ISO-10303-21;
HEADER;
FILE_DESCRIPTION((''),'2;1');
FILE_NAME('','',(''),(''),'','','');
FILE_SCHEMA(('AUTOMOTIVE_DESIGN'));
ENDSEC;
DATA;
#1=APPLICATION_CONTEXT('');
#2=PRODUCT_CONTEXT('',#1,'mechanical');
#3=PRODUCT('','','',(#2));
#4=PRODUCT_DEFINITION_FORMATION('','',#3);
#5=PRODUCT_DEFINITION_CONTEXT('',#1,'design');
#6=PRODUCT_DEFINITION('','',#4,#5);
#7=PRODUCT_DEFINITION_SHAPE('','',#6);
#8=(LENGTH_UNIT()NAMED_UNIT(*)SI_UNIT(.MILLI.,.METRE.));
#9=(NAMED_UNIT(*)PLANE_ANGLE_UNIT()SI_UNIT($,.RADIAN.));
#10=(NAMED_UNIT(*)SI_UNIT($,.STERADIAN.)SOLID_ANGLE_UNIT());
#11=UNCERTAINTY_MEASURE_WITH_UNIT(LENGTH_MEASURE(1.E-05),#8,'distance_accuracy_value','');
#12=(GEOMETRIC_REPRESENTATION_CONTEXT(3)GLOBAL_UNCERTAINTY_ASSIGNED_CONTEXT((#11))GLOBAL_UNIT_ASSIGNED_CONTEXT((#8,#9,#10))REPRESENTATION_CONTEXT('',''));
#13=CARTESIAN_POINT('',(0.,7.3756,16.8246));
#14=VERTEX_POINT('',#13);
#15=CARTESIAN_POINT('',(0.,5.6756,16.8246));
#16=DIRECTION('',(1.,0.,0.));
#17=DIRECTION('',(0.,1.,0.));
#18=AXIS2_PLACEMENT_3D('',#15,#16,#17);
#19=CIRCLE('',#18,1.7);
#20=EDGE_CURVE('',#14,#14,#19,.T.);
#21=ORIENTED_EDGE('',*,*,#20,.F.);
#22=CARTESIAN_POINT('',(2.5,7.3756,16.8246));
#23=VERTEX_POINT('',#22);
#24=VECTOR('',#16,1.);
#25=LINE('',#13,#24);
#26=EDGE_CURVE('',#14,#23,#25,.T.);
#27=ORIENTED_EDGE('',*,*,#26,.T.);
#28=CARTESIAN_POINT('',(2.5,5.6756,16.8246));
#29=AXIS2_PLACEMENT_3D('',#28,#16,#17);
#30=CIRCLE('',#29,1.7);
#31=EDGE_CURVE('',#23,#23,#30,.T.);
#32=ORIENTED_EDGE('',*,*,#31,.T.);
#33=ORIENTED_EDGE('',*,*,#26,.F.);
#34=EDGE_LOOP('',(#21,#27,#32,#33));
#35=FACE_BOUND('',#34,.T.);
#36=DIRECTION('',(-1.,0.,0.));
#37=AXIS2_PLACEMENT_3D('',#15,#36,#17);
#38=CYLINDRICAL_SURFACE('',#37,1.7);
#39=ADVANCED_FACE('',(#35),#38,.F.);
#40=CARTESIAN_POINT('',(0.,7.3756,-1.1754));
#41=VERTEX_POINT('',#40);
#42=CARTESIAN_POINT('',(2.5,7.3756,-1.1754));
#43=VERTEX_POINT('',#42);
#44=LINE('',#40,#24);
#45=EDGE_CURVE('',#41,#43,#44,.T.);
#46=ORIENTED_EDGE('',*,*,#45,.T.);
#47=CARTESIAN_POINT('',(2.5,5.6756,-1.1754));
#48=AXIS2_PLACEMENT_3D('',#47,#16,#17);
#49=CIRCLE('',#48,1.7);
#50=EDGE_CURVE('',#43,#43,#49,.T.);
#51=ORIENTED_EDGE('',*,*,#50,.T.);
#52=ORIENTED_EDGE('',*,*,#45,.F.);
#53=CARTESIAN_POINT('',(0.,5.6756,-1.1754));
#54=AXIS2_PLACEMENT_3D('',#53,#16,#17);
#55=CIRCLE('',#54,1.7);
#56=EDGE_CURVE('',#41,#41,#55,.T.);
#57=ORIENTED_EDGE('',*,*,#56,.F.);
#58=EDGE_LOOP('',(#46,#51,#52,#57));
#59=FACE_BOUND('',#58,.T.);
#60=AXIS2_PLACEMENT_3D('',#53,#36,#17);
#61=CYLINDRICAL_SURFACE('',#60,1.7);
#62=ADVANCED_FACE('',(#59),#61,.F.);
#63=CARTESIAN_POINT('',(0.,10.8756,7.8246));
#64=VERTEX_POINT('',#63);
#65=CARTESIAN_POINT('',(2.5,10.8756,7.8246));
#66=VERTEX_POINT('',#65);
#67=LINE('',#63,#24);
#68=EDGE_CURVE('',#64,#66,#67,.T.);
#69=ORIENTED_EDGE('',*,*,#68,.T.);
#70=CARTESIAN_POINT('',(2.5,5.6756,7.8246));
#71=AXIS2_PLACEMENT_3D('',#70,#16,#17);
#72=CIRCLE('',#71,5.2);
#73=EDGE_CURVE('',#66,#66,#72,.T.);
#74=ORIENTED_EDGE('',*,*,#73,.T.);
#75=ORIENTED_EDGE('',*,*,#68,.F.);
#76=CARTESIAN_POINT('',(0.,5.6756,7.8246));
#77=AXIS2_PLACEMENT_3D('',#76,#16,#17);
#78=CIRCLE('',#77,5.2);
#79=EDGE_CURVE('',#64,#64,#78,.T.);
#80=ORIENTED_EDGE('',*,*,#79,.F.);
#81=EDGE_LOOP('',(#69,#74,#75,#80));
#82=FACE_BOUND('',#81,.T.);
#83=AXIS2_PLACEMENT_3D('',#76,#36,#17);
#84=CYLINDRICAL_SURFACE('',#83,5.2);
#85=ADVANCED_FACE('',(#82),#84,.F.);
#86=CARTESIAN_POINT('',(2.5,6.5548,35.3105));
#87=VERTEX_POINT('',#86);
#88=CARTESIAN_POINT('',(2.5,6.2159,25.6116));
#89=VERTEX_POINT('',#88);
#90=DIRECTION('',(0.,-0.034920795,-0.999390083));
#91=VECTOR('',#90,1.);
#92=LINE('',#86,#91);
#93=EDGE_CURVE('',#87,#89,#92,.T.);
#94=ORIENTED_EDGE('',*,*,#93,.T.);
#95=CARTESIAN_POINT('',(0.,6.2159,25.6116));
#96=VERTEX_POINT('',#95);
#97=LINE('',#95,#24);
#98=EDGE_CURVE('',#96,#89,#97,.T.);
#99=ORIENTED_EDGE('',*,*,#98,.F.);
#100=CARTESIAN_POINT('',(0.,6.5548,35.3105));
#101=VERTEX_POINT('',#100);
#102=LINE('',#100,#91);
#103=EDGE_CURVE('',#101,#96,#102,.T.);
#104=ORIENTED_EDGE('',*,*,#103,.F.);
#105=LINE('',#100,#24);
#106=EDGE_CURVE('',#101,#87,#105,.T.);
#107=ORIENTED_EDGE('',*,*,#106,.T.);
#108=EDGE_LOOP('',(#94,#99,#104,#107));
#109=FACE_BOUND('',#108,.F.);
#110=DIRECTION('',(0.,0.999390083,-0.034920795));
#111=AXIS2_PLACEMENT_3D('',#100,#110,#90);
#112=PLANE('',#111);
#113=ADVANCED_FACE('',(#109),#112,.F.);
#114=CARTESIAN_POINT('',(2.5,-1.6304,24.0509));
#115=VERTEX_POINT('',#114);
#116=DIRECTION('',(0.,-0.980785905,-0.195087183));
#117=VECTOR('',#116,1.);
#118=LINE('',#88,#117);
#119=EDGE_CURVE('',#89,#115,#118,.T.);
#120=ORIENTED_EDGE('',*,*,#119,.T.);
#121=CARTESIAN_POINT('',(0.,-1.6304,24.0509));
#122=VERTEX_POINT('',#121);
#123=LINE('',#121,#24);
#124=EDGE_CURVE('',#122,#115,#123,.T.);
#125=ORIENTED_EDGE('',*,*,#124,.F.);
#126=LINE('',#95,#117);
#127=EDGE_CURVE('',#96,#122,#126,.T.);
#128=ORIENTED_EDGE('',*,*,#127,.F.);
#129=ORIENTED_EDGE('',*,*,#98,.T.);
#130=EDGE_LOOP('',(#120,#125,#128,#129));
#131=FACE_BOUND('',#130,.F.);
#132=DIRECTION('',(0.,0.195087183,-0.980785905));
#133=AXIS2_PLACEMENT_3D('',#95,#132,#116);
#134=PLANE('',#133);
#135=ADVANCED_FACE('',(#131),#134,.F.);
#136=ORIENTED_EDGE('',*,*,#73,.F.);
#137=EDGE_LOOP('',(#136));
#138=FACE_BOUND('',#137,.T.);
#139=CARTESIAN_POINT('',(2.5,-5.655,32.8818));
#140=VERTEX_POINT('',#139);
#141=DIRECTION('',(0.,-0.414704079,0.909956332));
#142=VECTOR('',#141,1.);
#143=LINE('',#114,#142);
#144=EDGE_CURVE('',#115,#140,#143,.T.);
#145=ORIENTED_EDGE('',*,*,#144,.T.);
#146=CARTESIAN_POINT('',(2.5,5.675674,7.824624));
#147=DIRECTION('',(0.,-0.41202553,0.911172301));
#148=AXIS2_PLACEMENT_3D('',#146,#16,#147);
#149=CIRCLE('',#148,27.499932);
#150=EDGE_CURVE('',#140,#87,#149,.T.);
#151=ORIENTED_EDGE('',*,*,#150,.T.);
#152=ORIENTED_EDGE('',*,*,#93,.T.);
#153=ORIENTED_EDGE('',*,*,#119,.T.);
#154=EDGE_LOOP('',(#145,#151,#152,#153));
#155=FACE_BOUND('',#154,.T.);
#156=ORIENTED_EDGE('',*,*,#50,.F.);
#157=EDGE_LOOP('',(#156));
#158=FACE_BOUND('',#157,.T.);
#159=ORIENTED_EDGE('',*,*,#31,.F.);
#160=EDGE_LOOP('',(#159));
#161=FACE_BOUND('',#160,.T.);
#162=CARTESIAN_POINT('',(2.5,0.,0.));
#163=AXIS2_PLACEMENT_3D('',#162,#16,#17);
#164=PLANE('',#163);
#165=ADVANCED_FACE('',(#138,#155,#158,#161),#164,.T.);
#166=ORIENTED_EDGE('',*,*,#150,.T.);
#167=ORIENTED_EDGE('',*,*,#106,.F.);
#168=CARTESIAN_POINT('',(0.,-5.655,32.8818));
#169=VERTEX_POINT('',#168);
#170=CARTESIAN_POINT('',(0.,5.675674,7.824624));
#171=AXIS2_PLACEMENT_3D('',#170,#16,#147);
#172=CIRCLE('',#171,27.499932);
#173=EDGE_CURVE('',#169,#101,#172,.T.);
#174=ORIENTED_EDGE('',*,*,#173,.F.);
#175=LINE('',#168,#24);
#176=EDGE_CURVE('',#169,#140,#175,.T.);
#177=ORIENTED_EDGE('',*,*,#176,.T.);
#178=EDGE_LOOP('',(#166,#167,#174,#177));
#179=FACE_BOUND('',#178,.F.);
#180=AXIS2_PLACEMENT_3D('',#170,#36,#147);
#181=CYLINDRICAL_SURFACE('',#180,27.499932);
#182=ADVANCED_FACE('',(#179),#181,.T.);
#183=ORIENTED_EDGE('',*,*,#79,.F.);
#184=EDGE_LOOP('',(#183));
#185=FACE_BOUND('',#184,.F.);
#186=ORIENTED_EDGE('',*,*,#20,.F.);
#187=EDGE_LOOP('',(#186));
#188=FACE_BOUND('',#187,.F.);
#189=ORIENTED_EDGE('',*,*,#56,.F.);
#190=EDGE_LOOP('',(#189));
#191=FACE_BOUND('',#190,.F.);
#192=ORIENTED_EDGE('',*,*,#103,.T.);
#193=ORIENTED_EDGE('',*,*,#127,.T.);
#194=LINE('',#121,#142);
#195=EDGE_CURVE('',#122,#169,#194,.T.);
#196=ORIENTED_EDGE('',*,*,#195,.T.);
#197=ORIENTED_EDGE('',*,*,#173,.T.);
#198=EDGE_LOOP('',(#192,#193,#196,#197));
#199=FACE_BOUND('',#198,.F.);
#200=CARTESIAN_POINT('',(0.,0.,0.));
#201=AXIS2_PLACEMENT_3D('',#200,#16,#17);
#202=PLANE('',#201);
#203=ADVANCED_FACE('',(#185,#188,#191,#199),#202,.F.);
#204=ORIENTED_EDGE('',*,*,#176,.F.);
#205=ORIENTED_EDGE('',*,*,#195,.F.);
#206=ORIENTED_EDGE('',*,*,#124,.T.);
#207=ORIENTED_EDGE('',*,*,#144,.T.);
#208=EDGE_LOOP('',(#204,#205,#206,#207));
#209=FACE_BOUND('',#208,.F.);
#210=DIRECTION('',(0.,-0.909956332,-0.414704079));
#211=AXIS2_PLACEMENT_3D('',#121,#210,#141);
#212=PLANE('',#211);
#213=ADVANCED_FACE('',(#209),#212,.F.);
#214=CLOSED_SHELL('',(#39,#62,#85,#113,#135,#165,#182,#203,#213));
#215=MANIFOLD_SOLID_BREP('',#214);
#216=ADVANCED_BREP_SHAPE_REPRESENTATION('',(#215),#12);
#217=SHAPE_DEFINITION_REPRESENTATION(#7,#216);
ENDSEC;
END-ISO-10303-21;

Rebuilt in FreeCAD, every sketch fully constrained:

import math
import FreeCAD as App
import Part
import Sketcher

V = App.Vector
Q = App.Units.Quantity

doc = App.newDocument("Part")
body = doc.addObject("PartDesign::Body", "Body")

# Sketch on YZ plane
sketch1 = body.newObject("Sketcher::SketchObject", "Sketch")
sketch1.AttachmentSupport = (doc.getObject("YZ_Plane"), [""])
sketch1.MapMode = "FlatFace"
sketch1.addGeometry([
    Part.LineSegment(V(-1.6, 24.1, 0), V(-5.7, 32.9, 0)),  # 0
    Part.ArcOfCircle(Part.Circle(V(5.7, 7.8, 0), V(0, 0, 1), 27.5), math.radians(114), math.radians(448)),  # 1
    Part.LineSegment(V(6.6, 35.3, 0), V(6.2, 25.6, 0)),  # 2
    Part.LineSegment(V(6.2, 25.6, 0), V(-1.6, 24.1, 0)),  # 3
    Part.Circle(V(5.7, -1.2, 0), V(0, 0, 1), 1.7),  # 4
    Part.Circle(V(5.7, 7.8, 0), V(0, 0, 1), 5.2),  # 5
    Part.Circle(V(5.7, 16.8, 0), V(0, 0, 1), 1.7),  # 6
], False)
sketch1.addConstraint([
    Sketcher.Constraint("Coincident", 0, 2, 1, 1),
    Sketcher.Constraint("Coincident", 1, 2, 2, 1),
    Sketcher.Constraint("Coincident", 2, 2, 3, 1),
    Sketcher.Constraint("Coincident", 3, 2, 0, 1),
    Sketcher.Constraint("Coincident", 5, 3, 1, 3),
    Sketcher.Constraint("Equal", 4, 6),
    Sketcher.Constraint("Vertical", 1, 3, 4, 3),
    Sketcher.Constraint("Vertical", 5, 3, 6, 3),
    Sketcher.Constraint("Equal", 0, 2),
    Sketcher.Constraint("Diameter", 4, Q("3.4 mm")),
    Sketcher.Constraint("Diameter", 5, Q("10.4 mm")),
    Sketcher.Constraint("Radius", 1, Q("27.5 mm")),
    Sketcher.Constraint("Distance", 3, Q("8 mm")),
    Sketcher.Constraint("Angle", 0, Q("114.5007 deg")),
    Sketcher.Constraint("DistanceY", 4, 3, 1, 3, Q("9 mm")),
    Sketcher.Constraint("DistanceY", 1, 3, 6, 3, Q("9 mm")),
    Sketcher.Constraint("Angle", 3, Q("-168.7502 deg")),
    Sketcher.Constraint("DistanceX", 0, 2, -1, 1, Q("5.655 mm")),
    Sketcher.Constraint("DistanceX", -1, 1, 2, 2, Q("6.216 mm")),
    Sketcher.Constraint("DistanceY", -1, 1, 3, 2, Q("24.051 mm")),
    Sketcher.Constraint("DistanceX", 2, 2, 1, 2, Q("0.339 mm")),
])
pad1 = body.newObject("PartDesign::Pad", "Pad")
pad1.Profile = sketch1
pad1.Length = 2.5

doc.recompute()
